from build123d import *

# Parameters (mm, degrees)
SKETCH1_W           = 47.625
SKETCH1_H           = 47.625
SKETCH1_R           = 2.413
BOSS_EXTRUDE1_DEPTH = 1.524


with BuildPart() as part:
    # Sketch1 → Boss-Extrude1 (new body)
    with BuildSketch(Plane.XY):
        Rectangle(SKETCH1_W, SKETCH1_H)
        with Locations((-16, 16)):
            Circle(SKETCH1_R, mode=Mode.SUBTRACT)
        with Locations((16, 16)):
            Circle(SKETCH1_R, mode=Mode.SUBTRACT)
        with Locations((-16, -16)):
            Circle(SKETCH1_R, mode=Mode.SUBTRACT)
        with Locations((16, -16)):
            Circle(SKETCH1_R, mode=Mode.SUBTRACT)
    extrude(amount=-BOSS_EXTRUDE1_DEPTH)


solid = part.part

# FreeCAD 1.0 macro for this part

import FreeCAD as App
import Part
import Sketcher

V = App.Vector
Q = App.Units.Quantity


def add_polygon(sketch, points):
    """Adds a closed chain of lines whose ends are joined by coincident constraints."""
    first, n = sketch.GeometryCount, len(points)
    for a, b in zip(points, points[1:] + points[:1]):
        sketch.addGeometry(Part.LineSegment(App.Vector(*a, 0), App.Vector(*b, 0)), False)
    for i in range(n):
        sketch.addConstraint(Sketcher.Constraint("Coincident", first + i, 2, first + (i + 1) % n, 1))

doc = App.newDocument("Part")
body = doc.addObject("PartDesign::Body", "Body")

sketch1 = body.newObject("Sketcher::SketchObject", "Sketch")
sketch1.AttachmentSupport = (doc.getObject("XY_Plane"), [""])
sketch1.MapMode = "FlatFace"
add_polygon(sketch1, [(-23.8, 23.8), (-23.8, -23.8), (23.8, -23.8), (23.8, 23.8)])
sketch1.addGeometry(Part.Circle(V(-16, -16, 0), V(0, 0, 1), 2.4), False)
sketch1.addGeometry(Part.Circle(V(16, -16, 0), V(0, 0, 1), 2.4), False)
sketch1.addGeometry(Part.Circle(V(-16, 16, 0), V(0, 0, 1), 2.4), False)
sketch1.addGeometry(Part.Circle(V(16, 16, 0), V(0, 0, 1), 2.4), False)
sketch1.addConstraint([
    Sketcher.Constraint("Vertical", 0),
    Sketcher.Constraint("Horizontal", 1),
    Sketcher.Constraint("Vertical", 2),
    Sketcher.Constraint("Horizontal", 3),
    Sketcher.Constraint("Equal", 4, 5),
    Sketcher.Constraint("Equal", 5, 6),
    Sketcher.Constraint("Equal", 6, 7),
    Sketcher.Constraint("Symmetric", 5, 3, 6, 3, -1, 1),
    Sketcher.Constraint("Symmetric", 4, 3, 7, 3, -1, 1),
    Sketcher.Constraint("Symmetric", 0, 2, 2, 2, -1, 1),
    Sketcher.Constraint("Symmetric", 4, 3, 5, 3, -2),
    Sketcher.Constraint("Equal", 3, 0),
    Sketcher.Constraint("Diameter", 4, Q("0.19 in")),
    Sketcher.Constraint("DistanceX", 1, 1, 1, 2, Q("1.875 in")),
    Sketcher.Constraint("DistanceX", 4, 3, -1, 1, 16.0),
    Sketcher.Constraint("DistanceY", 4, 3, -1, 1, 16.0),
])
pad1 = body.newObject("PartDesign::Pad", "Pad")
pad1.Profile = sketch1
pad1.Length = Q("0.06 in")
pad1.Reversed = True

doc.recompute()
